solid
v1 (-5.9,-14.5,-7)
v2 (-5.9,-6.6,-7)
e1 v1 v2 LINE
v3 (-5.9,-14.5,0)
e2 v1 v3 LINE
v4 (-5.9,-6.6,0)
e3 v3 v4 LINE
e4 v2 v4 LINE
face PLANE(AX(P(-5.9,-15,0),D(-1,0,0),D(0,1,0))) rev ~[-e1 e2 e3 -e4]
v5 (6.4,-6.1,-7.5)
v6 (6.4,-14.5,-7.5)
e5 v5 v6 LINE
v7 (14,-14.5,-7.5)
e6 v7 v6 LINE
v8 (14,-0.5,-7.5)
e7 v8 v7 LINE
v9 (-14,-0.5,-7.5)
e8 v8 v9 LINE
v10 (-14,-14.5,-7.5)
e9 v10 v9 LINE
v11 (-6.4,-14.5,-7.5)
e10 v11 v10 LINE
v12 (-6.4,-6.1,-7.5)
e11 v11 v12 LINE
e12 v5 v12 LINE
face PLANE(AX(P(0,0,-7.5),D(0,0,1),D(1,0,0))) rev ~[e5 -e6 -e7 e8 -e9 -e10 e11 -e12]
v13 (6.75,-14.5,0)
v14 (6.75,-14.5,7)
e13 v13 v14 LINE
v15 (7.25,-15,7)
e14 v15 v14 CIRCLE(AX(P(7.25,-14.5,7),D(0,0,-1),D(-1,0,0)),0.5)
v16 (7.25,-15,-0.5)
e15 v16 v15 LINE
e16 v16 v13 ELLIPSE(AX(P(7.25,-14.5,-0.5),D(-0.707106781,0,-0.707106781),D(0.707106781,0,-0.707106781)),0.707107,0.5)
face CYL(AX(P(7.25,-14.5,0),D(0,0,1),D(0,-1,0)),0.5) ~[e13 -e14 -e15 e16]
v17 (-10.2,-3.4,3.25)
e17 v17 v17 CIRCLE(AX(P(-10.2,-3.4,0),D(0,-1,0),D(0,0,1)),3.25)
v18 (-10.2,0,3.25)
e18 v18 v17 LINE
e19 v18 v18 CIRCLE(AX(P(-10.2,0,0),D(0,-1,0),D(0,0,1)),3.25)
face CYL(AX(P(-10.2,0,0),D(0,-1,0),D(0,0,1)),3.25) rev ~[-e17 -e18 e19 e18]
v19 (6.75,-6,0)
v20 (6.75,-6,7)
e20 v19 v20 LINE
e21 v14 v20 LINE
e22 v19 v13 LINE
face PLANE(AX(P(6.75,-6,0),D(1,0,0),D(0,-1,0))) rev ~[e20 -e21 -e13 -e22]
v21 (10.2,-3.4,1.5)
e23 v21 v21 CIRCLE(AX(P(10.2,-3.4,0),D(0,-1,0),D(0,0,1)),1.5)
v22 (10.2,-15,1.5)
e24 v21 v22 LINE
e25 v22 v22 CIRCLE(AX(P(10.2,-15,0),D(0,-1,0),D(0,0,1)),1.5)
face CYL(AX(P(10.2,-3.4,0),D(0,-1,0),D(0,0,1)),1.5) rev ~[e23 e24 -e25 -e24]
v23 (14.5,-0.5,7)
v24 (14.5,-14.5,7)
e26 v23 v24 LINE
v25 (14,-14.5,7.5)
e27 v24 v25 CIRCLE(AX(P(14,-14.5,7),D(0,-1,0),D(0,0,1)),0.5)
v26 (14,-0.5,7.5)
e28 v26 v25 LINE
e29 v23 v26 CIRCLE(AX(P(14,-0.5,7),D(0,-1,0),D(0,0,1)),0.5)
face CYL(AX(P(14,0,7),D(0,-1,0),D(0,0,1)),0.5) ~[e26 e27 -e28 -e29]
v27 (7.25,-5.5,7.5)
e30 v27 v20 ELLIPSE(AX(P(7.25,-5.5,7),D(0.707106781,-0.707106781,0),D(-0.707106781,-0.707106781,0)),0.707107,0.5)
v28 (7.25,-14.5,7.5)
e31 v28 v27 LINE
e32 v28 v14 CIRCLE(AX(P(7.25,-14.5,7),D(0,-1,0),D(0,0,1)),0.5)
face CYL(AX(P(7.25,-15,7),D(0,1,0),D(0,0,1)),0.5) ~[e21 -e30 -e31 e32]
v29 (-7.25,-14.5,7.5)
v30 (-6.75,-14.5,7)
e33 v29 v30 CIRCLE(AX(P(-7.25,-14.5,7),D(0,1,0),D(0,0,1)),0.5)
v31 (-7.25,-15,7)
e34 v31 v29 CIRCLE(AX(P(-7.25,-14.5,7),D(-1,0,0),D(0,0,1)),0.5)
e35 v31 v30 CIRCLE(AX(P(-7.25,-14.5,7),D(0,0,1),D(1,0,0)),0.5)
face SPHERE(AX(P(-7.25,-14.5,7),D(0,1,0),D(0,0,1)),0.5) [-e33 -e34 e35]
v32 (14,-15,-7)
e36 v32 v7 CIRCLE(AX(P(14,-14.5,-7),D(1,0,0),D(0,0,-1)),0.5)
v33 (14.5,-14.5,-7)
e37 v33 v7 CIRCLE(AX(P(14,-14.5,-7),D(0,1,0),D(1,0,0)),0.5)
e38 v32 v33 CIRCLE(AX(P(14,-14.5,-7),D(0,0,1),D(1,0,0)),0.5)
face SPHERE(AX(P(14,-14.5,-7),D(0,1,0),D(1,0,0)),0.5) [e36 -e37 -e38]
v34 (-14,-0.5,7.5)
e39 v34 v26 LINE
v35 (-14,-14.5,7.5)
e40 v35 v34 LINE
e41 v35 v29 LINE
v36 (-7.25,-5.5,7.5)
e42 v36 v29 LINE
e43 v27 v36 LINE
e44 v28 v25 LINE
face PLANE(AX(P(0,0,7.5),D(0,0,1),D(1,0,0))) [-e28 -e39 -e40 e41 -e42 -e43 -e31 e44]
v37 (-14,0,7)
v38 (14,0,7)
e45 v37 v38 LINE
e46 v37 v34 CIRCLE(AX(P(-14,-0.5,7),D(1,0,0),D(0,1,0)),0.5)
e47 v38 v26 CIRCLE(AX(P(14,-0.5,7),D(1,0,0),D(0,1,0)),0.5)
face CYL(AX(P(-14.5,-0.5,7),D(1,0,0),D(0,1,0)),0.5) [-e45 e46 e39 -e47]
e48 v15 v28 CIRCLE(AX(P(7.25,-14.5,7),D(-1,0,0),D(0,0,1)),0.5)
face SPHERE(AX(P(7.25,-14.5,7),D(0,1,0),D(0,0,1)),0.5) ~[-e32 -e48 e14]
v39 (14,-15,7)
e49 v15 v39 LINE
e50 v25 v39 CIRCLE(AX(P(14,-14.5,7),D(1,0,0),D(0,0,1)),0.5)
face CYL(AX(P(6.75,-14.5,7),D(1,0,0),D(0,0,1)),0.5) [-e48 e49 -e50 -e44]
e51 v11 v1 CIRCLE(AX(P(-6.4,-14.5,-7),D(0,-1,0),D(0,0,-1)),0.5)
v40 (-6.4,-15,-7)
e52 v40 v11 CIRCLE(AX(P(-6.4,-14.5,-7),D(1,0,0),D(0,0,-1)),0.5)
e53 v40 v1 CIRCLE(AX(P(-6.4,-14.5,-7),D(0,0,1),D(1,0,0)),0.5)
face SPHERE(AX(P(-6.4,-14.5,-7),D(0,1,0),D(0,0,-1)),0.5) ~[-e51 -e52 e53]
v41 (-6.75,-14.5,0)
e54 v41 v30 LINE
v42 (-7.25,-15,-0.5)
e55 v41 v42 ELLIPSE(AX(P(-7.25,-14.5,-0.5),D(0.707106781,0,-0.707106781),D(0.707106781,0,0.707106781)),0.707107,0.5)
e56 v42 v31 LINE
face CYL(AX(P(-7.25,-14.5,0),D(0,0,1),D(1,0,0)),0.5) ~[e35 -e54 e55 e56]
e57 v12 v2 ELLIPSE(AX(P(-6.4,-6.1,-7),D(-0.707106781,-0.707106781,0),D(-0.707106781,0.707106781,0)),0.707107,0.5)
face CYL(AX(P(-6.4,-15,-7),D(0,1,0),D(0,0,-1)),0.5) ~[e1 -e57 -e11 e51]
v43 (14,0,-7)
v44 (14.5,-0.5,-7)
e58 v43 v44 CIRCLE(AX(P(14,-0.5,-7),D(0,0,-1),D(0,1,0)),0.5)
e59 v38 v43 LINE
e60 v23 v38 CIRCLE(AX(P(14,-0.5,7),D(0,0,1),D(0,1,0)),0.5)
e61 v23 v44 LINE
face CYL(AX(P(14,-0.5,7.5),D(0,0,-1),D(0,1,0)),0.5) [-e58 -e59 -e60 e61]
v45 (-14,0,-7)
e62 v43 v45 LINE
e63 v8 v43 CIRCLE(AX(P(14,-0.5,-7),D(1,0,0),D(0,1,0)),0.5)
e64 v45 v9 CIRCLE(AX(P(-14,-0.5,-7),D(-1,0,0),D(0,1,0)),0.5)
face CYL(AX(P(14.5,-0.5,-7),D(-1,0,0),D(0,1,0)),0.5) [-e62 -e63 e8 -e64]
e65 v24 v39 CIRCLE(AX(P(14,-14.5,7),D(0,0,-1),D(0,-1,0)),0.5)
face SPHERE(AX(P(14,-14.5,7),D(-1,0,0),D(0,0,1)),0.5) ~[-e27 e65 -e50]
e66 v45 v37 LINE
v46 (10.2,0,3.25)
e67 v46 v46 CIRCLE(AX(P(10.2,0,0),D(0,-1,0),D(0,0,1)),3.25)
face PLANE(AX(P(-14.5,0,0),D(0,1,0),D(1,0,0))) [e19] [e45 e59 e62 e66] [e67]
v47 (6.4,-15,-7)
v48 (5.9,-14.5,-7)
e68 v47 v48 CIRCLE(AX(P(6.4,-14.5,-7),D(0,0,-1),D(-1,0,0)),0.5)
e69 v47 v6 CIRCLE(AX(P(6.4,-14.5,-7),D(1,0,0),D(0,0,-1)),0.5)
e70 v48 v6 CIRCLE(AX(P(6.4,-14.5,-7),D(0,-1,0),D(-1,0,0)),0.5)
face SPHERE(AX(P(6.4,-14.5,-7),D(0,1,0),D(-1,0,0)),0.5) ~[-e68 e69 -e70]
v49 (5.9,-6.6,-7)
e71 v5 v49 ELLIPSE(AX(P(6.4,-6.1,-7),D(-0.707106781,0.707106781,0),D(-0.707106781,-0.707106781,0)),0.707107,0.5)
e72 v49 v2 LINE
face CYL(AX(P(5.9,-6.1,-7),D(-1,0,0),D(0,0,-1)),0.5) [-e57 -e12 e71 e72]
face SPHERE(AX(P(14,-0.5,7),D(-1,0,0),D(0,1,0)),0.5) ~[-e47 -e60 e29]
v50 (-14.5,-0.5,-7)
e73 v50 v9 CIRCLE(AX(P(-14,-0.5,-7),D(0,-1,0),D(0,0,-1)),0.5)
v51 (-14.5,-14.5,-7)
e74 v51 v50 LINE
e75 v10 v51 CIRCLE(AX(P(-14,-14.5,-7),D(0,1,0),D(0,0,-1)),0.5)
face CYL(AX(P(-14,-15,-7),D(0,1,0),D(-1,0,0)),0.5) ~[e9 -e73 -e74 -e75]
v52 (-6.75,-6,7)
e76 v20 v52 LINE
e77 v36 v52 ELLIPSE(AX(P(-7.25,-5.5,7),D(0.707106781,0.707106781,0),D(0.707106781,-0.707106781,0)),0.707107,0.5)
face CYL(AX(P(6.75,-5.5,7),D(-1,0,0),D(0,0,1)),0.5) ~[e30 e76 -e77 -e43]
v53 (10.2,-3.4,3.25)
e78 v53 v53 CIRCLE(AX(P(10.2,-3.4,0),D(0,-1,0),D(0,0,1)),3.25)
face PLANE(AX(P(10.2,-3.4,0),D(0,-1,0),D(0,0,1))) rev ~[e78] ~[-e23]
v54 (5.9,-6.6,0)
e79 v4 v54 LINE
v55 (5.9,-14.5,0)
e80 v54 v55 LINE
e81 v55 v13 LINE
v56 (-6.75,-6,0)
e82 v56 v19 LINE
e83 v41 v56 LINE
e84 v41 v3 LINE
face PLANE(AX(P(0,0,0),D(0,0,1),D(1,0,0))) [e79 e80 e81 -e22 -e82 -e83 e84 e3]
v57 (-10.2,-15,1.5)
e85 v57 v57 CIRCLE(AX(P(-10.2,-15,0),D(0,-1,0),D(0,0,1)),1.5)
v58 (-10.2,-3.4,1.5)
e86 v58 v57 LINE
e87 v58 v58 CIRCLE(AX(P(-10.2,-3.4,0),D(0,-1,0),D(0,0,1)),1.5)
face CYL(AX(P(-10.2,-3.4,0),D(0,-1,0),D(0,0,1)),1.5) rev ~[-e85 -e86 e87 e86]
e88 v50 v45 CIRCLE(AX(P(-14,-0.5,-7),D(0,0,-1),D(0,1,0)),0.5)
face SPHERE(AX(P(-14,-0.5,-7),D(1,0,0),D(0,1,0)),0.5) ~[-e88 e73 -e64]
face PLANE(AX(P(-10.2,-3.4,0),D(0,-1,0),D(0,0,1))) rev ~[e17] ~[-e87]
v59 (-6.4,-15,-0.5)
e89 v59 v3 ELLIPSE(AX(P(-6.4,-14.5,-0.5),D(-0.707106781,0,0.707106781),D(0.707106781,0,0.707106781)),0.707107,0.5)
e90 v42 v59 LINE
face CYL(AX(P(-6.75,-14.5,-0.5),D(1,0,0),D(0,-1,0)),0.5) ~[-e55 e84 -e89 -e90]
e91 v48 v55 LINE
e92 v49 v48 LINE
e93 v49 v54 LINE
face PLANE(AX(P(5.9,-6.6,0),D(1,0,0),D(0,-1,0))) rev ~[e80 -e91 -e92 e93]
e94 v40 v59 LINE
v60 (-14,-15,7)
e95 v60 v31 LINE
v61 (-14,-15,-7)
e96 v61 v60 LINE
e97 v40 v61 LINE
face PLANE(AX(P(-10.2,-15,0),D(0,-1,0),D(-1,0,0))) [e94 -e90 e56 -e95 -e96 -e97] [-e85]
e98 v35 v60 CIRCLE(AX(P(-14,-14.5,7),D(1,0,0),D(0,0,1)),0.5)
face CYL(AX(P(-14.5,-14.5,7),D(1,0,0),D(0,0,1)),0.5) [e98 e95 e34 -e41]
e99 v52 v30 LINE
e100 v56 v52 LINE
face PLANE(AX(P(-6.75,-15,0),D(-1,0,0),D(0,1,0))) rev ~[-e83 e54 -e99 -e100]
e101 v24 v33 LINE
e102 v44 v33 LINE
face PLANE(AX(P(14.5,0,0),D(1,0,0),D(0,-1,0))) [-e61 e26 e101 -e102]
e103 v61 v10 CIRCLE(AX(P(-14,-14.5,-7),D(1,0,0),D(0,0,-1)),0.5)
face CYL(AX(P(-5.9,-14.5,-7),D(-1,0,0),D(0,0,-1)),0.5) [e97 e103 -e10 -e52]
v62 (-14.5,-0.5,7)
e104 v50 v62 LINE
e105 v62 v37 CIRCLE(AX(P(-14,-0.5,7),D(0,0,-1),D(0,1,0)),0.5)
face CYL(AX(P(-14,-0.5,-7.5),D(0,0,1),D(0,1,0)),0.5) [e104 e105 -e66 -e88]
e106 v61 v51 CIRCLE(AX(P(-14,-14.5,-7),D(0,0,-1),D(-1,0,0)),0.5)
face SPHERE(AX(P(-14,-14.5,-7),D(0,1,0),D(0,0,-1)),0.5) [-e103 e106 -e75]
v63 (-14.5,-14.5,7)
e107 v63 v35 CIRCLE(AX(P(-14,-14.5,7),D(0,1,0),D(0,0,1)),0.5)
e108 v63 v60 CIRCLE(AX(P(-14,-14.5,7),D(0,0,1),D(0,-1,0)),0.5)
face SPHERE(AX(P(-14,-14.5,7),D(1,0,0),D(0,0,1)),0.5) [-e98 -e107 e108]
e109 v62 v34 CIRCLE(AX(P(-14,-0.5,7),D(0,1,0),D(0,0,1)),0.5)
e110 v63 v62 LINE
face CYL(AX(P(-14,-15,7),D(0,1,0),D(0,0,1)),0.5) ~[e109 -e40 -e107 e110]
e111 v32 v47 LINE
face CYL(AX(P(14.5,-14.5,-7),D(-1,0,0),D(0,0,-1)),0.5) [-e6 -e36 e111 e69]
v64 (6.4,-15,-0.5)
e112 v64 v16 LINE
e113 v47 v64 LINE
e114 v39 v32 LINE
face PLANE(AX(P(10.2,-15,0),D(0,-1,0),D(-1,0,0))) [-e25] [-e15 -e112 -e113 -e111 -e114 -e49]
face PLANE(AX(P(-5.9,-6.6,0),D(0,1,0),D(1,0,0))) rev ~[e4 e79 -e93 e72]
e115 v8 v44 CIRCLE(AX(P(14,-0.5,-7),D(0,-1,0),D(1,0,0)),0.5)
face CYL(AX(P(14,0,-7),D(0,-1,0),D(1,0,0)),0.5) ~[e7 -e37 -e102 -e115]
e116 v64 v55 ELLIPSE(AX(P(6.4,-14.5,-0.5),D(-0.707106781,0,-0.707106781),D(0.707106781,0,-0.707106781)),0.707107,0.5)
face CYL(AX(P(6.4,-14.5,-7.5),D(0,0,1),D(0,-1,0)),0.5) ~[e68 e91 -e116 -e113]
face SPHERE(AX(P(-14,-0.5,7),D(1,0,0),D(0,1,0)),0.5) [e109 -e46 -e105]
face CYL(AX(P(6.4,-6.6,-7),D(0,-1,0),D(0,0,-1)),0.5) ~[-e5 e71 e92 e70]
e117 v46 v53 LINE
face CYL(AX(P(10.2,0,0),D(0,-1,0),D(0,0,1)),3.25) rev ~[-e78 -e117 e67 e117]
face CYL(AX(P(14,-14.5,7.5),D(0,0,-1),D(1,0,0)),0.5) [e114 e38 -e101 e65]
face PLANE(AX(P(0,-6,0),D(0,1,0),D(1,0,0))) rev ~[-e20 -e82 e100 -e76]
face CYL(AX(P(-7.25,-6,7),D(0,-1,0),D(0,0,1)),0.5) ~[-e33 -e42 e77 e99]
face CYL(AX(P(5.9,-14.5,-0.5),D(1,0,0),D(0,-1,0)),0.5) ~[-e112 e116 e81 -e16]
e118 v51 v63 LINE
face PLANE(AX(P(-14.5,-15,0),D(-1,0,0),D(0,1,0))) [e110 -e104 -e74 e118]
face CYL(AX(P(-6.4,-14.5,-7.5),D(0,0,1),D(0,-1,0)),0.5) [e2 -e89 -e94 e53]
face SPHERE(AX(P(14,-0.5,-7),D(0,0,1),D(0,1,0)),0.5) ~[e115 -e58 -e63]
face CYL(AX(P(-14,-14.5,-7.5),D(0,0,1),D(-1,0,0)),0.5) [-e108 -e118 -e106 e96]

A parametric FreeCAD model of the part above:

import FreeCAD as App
import Part
import Sketcher


def edges_at(feature, points):
    """Names of the edges that pass closest to the given points."""
    edges = feature.Shape.Edges
    near = lambda p: min(range(len(edges)), key=lambda i: edges[i].distToShape(Part.Vertex(*p))[0])
    return sorted({f"Edge{near(p) + 1}" for p in points})


def add_polygon(sketch, points):
    """Adds a closed chain of lines whose ends are joined by coincident constraints."""
    first, n = sketch.GeometryCount, len(points)
    for a, b in zip(points, points[1:] + points[:1]):
        sketch.addGeometry(Part.LineSegment(App.Vector(*a, 0), App.Vector(*b, 0)), False)
    for i in range(n):
        sketch.addConstraint(Sketcher.Constraint("Coincident", first + i, 2, first + (i + 1) % n, 1))

doc = App.newDocument("Part")
body = doc.addObject("PartDesign::Body", "Body")

sketch1 = body.newObject("Sketcher::SketchObject", "Sketch")
sketch1.AttachmentSupport = (doc.getObject("XY_Plane"), [""])
sketch1.MapMode = "FlatFace"
add_polygon(sketch1, [(-14, 0), (-14, -15), (-6, -15), (-6, -7), (6, -7), (6, -15), (14, -15), (14, 0)])
sketch1.addConstraint([
    Sketcher.Constraint("Vertical", 0),
    Sketcher.Constraint("Horizontal", 1),
    Sketcher.Constraint("Vertical", 2),
    Sketcher.Constraint("Horizontal", 3),
    Sketcher.Constraint("Vertical", 4),
    Sketcher.Constraint("Horizontal", 5),
    Sketcher.Constraint("Vertical", 6),
    Sketcher.Constraint("Horizontal", 7),
    Sketcher.Constraint("Symmetric", 6, 2, 7, 2, -1, 1),
    Sketcher.Constraint("Symmetric", 1, 2, 4, 2, -2),
    Sketcher.Constraint("DistanceX", 7, 2, 7, 1, 29.0),
    Sketcher.Constraint("DistanceY", 0, 2, 0, 1, 15.0),
    Sketcher.Constraint("DistanceX", 3, 1, 3, 2, 11.8),
    Sketcher.Constraint("DistanceY", 2, 1, 2, 2, 8.4),
])
pad1 = body.newObject("PartDesign::Pad", "Pad")
pad1.Profile = sketch1
pad1.Length = 15
pad1.Midplane = True

sketch2 = body.newObject("Sketcher::SketchObject", "Sketch001")
sketch2.AttachmentSupport = (doc.getObject("XY_Plane"), [""])
sketch2.MapMode = "FlatFace"
add_polygon(sketch2, [(7, -15), (7, -6), (-7, -6), (-7, -15)])
sketch2.addConstraint([
    Sketcher.Constraint("Vertical", 0),
    Sketcher.Constraint("Horizontal", 1),
    Sketcher.Constraint("Vertical", 2),
    Sketcher.Constraint("Horizontal", 3),
    Sketcher.Constraint("DistanceY", 0, 1, 0, 2, 9.0),
    Sketcher.Constraint("DistanceX", 1, 2, 1, 1, 13.5),
    Sketcher.Constraint("DistanceY", 0, 2, -1, 1, 6.0),
    Sketcher.Constraint("DistanceX", -1, 1, 0, 2, 6.75),
])
pocket1 = body.newObject("PartDesign::Pocket", "Pocket")
pocket1.Profile = sketch2
pocket1.Type = "ThroughAll"
pocket1.Reversed = True

sketch3 = body.newObject("Sketcher::SketchObject", "Sketch002")
sketch3.AttachmentSupport = (doc.getObject("XZ_Plane"), [""])
sketch3.MapMode = "FlatFace"
sketch3.addGeometry([
    Part.Circle(App.Vector(-10.2, 0, 0), App.Vector(0, 0, 1), 1.5),
    Part.Circle(App.Vector(10.2, 0, 0), App.Vector(0, 0, 1), 1.5),
], False)
sketch3.addConstraint([
    Sketcher.Constraint("Equal", 0, 1),
    Sketcher.Constraint("Symmetric", 0, 3, 1, 3, -1, 1),
    Sketcher.Constraint("PointOnObject", 0, 3, -1),
    Sketcher.Constraint("Diameter", 0, 3.0),
    Sketcher.Constraint("DistanceX", 0, 3, -1, 1, 10.2),
])
doc.recompute()
hole = body.newObject("PartDesign::Hole", "Hole")
hole.Profile = sketch3
hole.ThreadType = "None"
hole.Diameter = 3
hole.DepthType = "ThroughAll"
hole.HoleCutType = "Counterbore"
hole.HoleCutDiameter = 6.5
hole.HoleCutDepth = 3.4
hole.Reversed = True
doc.recompute()

fillet = body.newObject("PartDesign::Fillet", "Fillet")
fillet.Base = (hole, edges_at(hole, [
    (0, 0, 7.5),
    (14.5, 0, 0),
    (0, 0, -7.5),
    (-14.5, 0, 0),
    (-6.75, -10.5, 7.5),
    (0, -6, 7.5),
    (-10.625, -15, 7.5),
    (-14.5, -7.5, 7.5),
    (6.75, -10.5, 7.5),
    (10.625, -15, 7.5),
    (14.5, -7.5, 7.5),
    (14.5, -7.5, -7.5),
    (14.5, -15, 0),
    (5.9, -10.8, -7.5),
    (0, -6.6, -7.5),
    (-5.9, -10.8, -7.5),
    (-14.5, -7.5, -7.5),
    (-10.2, -15, -7.5),
    (-5.9, -15, -3.75),
    (-6.75, -15, 3.75),
    (-14.5, -15, 0),
    (-6.325, -15, 0),
    (6.325, -15, 0),
    (6.75, -15, 3.75),
    (5.9, -15, -3.75),
    (10.2, -15, -7.5),
]))
fillet.Radius = 0.5

doc.recompute()
